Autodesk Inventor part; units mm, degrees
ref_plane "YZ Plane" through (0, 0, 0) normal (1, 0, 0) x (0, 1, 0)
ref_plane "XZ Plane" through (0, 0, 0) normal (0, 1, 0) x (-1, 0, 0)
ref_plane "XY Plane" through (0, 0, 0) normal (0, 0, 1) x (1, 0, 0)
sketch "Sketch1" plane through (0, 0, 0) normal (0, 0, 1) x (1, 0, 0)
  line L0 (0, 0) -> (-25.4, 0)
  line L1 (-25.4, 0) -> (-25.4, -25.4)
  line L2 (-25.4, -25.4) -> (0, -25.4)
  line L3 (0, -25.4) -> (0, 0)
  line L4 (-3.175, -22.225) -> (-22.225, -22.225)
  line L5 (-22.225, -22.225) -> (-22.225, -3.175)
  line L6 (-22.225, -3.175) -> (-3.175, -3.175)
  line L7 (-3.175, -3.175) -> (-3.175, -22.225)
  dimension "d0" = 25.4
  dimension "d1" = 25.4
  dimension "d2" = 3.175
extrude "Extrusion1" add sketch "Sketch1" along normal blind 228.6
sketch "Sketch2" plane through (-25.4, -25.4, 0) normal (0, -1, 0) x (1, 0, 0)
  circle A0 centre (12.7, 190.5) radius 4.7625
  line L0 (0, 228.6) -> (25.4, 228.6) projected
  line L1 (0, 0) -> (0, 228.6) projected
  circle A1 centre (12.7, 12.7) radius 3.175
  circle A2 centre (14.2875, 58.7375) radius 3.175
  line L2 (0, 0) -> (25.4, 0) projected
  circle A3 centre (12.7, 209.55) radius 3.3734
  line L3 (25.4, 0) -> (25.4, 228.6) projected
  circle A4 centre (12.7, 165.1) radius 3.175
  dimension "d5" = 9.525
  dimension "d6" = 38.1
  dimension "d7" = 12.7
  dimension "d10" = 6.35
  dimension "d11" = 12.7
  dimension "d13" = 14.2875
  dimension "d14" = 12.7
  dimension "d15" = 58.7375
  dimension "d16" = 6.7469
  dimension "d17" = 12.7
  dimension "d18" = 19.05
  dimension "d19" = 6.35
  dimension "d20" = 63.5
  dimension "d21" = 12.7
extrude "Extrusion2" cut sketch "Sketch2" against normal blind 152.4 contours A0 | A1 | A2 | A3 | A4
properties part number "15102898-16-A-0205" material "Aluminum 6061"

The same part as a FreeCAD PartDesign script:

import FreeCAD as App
import Part
import Sketcher
Q = App.Units.Quantity

doc = App.newDocument("Part")
body = doc.addObject("PartDesign::Body", "Body")

sketch1 = body.newObject("Sketcher::SketchObject", "Sketch")
sketch1.AttachmentSupport = (doc.getObject("XY_Plane"), [""])
sketch1.MapMode = "FlatFace"
sketch1.addGeometry([
    Part.LineSegment(App.Vector(0, -25.4, 0), App.Vector(0, 0, 0)),
    Part.LineSegment(App.Vector(0, 0, 0), App.Vector(-25.4, 0, 0)),
    Part.LineSegment(App.Vector(-25.4, 0, 0), App.Vector(-25.4, -25.4, 0)),
    Part.LineSegment(App.Vector(-25.4, -25.4, 0), App.Vector(0, -25.4, 0)),
    Part.LineSegment(App.Vector(-3.175, -3.175, 0), App.Vector(-3.175, -22.225, 0)),
    Part.LineSegment(App.Vector(-3.175, -22.225, 0), App.Vector(-22.225, -22.225, 0)),
    Part.LineSegment(App.Vector(-22.225, -22.225, 0), App.Vector(-22.225, -3.175, 0)),
    Part.LineSegment(App.Vector(-22.225, -3.175, 0), App.Vector(-3.175, -3.175, 0)),
], False)
sketch1.addConstraint([
    Sketcher.Constraint("Coincident", 0, 2, 1, 1),
    Sketcher.Constraint("Coincident", 1, 2, 2, 1),
    Sketcher.Constraint("Coincident", 2, 2, 3, 1),
    Sketcher.Constraint("Coincident", 3, 2, 0, 1),
    Sketcher.Constraint("Coincident", 4, 2, 5, 1),
    Sketcher.Constraint("Coincident", 5, 2, 6, 1),
    Sketcher.Constraint("Coincident", 6, 2, 7, 1),
    Sketcher.Constraint("Coincident", 7, 2, 4, 1),
    Sketcher.Constraint("Vertical", 0),
    Sketcher.Constraint("Horizontal", 1),
    Sketcher.Constraint("Vertical", 2),
    Sketcher.Constraint("Horizontal", 3),
    Sketcher.Constraint("Vertical", 4),
    Sketcher.Constraint("Horizontal", 5),
    Sketcher.Constraint("Vertical", 6),
    Sketcher.Constraint("Horizontal", 7),
    Sketcher.Constraint("Coincident", 0, 2, -1, 1),
    Sketcher.Constraint("Equal", 3, 0),
    Sketcher.Constraint("Equal", 7, 4),
    Sketcher.Constraint("DistanceX", 1, 2, 1, 1, Q("1 in")),
    Sketcher.Constraint("DistanceX", 4, 2, -1, 1, Q("0.125 in")),
    Sketcher.Constraint("DistanceY", 6, 2, -1, 1, Q("0.125 in")),
    Sketcher.Constraint("DistanceY", 3, 2, 4, 2, Q("0.125 in")),
])
pad1 = body.newObject("PartDesign::Pad", "Pad")
pad1.Profile = sketch1
pad1.Length = Q("9 in")

sketch2 = body.newObject("Sketcher::SketchObject", "Sketch001")
sketch2.AttachmentSupport = (doc.getObject("XZ_Plane"), [""])
sketch2.MapMode = "FlatFace"
sketch2.AttachmentOffset = App.Placement(App.Vector(0, 0, 1 * 25.4), App.Rotation())
sketch2.addGeometry([
    Part.Circle(App.Vector(-12.7, 190.5, 0), App.Vector(0, 0, 1), 4.7625),
    Part.Circle(App.Vector(-12.7, 12.7, 0), App.Vector(0, 0, 1), 3.175),
    Part.Circle(App.Vector(-11.1125, 58.7375, 0), App.Vector(0, 0, 1), 3.175),
    Part.Circle(App.Vector(-12.7, 209.55, 0), App.Vector(0, 0, 1), 3.3734),
    Part.Circle(App.Vector(-12.7, 165.1, 0), App.Vector(0, 0, 1), 3.175),
], False)
sketch2.addConstraint([
    Sketcher.Constraint("Equal", 1, 2),
    Sketcher.Constraint("Equal", 2, 4),
    Sketcher.Constraint("Vertical", 0, 3, 1, 3),
    Sketcher.Constraint("Vertical", 1, 3, 3, 3),
    Sketcher.Constraint("Vertical", 3, 3, 4, 3),
    Sketcher.Constraint("Diameter", 1, Q("0.25 in")),
    Sketcher.Constraint("Diameter", 0, Q("0.375 in")),
    Sketcher.Constraint("Diameter", 3, Q("0.265622 in")),
    Sketcher.Constraint("DistanceX", 0, 3, -1, 1, Q("0.5 in")),
    Sketcher.Constraint("DistanceY", -1, 1, 1, 3, Q("0.5 in")),
    Sketcher.Constraint("DistanceY", 0, 3, 3, 3, Q("0.75 in")),
    Sketcher.Constraint("DistanceY", -1, 1, 2, 3, Q("2.3125 in")),
    Sketcher.Constraint("DistanceY", 1, 3, 0, 3, Q("7 in")),
    Sketcher.Constraint("DistanceY", 4, 3, 0, 3, Q("1 in")),
    Sketcher.Constraint("DistanceX", 2, 3, -1, 1, Q("0.4375 in")),
])
pocket1 = body.newObject("PartDesign::Pocket", "Pocket")
pocket1.Profile = sketch2
pocket1.Length = Q("6 in")

doc.recompute()
